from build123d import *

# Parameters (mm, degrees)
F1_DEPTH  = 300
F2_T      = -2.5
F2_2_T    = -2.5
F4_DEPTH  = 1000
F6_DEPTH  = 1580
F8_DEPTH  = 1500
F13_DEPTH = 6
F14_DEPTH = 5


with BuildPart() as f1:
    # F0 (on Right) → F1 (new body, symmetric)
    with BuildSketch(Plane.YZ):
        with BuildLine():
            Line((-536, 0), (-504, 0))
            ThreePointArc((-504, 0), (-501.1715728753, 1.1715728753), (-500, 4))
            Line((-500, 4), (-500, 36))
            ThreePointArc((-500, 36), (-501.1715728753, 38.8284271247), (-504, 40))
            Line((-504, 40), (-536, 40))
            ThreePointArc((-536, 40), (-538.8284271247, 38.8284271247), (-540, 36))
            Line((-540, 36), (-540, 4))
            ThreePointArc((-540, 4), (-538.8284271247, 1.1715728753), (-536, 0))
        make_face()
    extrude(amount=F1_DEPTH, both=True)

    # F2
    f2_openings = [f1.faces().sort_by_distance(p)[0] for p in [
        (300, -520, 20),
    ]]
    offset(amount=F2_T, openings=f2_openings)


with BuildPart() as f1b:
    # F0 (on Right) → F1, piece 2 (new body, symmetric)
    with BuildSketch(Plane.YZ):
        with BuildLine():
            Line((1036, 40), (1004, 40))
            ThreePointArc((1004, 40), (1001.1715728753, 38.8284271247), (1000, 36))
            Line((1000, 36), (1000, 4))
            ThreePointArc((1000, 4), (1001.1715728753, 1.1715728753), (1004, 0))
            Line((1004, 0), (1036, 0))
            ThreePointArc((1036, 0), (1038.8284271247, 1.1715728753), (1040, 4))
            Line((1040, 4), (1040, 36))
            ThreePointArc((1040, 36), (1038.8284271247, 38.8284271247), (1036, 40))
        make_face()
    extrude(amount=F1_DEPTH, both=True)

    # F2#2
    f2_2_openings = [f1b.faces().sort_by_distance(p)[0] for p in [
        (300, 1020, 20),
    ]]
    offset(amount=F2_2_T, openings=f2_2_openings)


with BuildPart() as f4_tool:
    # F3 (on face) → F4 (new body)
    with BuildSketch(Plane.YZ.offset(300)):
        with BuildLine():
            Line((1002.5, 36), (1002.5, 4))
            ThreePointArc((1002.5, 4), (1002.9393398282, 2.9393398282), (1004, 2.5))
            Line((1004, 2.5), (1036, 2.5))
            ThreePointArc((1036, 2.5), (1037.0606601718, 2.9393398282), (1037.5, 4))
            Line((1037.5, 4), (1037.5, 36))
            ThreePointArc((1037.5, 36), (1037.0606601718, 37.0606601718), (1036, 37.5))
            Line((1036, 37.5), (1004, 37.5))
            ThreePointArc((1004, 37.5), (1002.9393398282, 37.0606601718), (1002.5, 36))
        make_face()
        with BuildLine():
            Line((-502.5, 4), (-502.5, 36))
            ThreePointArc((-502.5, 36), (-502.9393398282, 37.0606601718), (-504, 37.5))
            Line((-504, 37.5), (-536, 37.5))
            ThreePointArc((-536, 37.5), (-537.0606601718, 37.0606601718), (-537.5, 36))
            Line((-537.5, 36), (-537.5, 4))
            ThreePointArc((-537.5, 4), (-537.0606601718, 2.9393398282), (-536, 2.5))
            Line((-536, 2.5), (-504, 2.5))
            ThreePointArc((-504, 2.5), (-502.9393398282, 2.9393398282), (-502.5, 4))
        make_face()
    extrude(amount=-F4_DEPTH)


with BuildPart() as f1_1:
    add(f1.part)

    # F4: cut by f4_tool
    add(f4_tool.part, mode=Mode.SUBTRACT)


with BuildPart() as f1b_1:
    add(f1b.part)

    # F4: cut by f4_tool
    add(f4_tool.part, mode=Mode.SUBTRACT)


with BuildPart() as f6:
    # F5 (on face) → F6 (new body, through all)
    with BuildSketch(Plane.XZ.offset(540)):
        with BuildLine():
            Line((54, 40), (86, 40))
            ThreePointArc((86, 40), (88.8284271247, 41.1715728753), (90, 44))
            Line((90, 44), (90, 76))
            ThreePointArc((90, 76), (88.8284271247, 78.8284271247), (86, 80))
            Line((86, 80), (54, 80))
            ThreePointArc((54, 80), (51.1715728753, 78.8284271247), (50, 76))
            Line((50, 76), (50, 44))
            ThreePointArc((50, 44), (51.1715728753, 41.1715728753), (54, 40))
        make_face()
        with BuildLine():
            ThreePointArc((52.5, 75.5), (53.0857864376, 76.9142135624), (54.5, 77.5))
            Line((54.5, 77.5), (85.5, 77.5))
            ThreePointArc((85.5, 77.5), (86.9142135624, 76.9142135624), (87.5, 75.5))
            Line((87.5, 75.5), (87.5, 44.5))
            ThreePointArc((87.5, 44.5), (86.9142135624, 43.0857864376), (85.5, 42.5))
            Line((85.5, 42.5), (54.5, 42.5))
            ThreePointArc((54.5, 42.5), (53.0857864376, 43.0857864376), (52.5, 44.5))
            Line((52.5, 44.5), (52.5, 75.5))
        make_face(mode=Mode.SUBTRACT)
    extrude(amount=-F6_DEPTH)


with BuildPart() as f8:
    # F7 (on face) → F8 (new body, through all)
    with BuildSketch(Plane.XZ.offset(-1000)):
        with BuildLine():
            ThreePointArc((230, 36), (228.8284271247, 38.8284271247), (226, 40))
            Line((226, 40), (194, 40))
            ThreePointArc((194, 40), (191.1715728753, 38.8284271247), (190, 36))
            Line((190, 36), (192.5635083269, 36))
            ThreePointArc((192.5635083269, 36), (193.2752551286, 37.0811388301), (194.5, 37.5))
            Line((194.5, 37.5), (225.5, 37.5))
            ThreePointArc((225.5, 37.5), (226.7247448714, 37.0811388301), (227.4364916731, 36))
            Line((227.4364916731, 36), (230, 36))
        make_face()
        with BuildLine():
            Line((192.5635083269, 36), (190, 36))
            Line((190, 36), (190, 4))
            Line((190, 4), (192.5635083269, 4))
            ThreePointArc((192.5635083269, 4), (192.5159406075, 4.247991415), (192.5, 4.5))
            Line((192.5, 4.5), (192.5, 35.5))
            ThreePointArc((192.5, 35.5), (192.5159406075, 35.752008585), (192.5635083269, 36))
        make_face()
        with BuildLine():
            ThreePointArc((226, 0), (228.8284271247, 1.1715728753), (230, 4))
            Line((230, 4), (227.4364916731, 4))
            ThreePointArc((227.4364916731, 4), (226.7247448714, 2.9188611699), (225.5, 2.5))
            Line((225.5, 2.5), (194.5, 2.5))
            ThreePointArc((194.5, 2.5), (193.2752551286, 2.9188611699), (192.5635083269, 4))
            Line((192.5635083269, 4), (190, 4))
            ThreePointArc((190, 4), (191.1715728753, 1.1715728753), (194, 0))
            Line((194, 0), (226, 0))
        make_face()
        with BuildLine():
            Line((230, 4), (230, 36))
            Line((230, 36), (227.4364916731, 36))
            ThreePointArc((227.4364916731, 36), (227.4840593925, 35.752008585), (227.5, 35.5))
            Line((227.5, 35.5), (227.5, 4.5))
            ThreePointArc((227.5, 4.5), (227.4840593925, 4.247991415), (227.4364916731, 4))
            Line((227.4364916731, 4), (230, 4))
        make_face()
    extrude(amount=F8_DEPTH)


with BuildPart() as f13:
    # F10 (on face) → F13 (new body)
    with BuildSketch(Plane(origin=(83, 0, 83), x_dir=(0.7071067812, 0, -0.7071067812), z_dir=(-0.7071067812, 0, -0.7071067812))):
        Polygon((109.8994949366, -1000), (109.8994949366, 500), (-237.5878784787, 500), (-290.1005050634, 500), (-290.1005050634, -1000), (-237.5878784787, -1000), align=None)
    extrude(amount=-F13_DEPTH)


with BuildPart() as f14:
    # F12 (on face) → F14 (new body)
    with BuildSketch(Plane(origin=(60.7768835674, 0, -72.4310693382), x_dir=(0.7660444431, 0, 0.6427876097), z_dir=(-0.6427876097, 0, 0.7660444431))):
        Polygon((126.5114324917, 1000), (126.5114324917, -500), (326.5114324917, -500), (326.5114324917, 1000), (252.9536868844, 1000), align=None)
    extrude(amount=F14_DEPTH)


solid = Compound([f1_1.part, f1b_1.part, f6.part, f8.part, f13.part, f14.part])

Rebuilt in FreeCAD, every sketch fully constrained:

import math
import FreeCAD as App
import Part
import Sketcher
from FreeCAD import Vector
Q = App.Units.Quantity


def faces_at(feature, points):
    """Names of the faces that lie closest to the given points."""
    faces = feature.Shape.Faces
    near = lambda p: min(range(len(faces)), key=lambda i: faces[i].distToShape(Part.Vertex(*p))[0])
    return sorted({f"Face{near(p) + 1}" for p in points})

doc = App.newDocument("Part")
params = doc.addObject("Spreadsheet::Sheet", "Params")
for row, (alias, value) in enumerate([
    ("sketch1_radius", "4 mm"),
    ("sketch1_width", "32 mm"),
    ("pad1_length", "600 mm"),
    ("thickness_wall", "2.5 mm"),
    ("sketch2_radius", "4 mm"),
    ("sketch2_width", "32 mm"),
    ("pad2_length", "600 mm"),
    ("thickness2_wall", "2.5 mm"),
    ("sketch3_radius", "1.5 mm"),
    ("sketch3_width", "32 mm"),
    ("pad3_length", "1000 mm"),
    ("sketch4_radius", "4 mm"),
    ("sketch4_radius2", "2 mm"),
    ("sketch4_width", "32 mm"),
    ("sketch4_width2", "31 mm"),
    ("pad4_length", "1580 mm"),
    ("sketch5_radius", "4 mm"),
    ("sketch5_radius2", "2 mm"),
    ("sketch5_width", "32 mm"),
    ("sketch5_width2", "31 mm"),
    ("pad5_length", "1500 mm"),
    ("sketch6_width", "400 mm"),
    ("sketch6_height", "1499.999998 mm"),
    ("pad6_length", "6 mm"),
    ("sketch7_width", "200 mm"),
    ("sketch7_height", "1500.000001 mm"),
    ("pad7_length", "5 mm"),
], start=1):
    params.set(f"A{row}", alias)
    params.set(f"B{row}", "=" + value)
    params.setAlias(f"B{row}", alias)

body = doc.addObject("PartDesign::Body", "Body")

# Sketch on YZ plane
sketch1 = body.newObject("Sketcher::SketchObject", "Sketch")
sketch1.AttachmentSupport = (doc.getObject("YZ_Plane"), [""])
sketch1.MapMode = "FlatFace"
sketch1.addGeometry([
    Part.LineSegment(Vector(-536, 0, 0), Vector(-504, 0, 0)),  # 0
    Part.ArcOfCircle(Part.Circle(Vector(-504, 4, 0), Vector(0, 0, 1), 4), math.radians(-90), math.radians(0)),  # 1
    Part.LineSegment(Vector(-500, 4, 0), Vector(-500, 36, 0)),  # 2
    Part.ArcOfCircle(Part.Circle(Vector(-504, 36, 0), Vector(0, 0, 1), 4), math.radians(0), math.radians(90)),  # 3
    Part.LineSegment(Vector(-504, 40, 0), Vector(-536, 40, 0)),  # 4
    Part.ArcOfCircle(Part.Circle(Vector(-536, 36, 0), Vector(0, 0, 1), 4), math.radians(90), math.radians(180)),  # 5
    Part.LineSegment(Vector(-540, 36, 0), Vector(-540, 4, 0)),  # 6
    Part.ArcOfCircle(Part.Circle(Vector(-536, 4, 0), Vector(0, 0, 1), 4), math.radians(180), math.radians(270)),  # 7
], False)
sketch1.addConstraint([
    Sketcher.Constraint("Tangent", 0, 2, 1, 1),
    Sketcher.Constraint("Tangent", 1, 2, 2, 1),
    Sketcher.Constraint("Tangent", 2, 2, 3, 1),
    Sketcher.Constraint("Tangent", 3, 2, 4, 1),
    Sketcher.Constraint("Tangent", 4, 2, 5, 1),
    Sketcher.Constraint("Tangent", 5, 2, 6, 1),
    Sketcher.Constraint("Tangent", 6, 2, 7, 1),
    Sketcher.Constraint("Tangent", 7, 2, 0, 1),
    Sketcher.Constraint("Horizontal", 0),
    Sketcher.Constraint("Vertical", 2),
    Sketcher.Constraint("Horizontal", 4),
    Sketcher.Constraint("Vertical", 6),
    Sketcher.Constraint("Equal", 1, 3),
    Sketcher.Constraint("Equal", 3, 5),
    Sketcher.Constraint("Equal", 5, 7),
    Sketcher.Constraint("PointOnObject", 0, 2, -1),
    Sketcher.Constraint("Equal", 4, 2),
    Sketcher.Constraint("Radius", 1, Q("4 mm")),
    Sketcher.Constraint("DistanceX", 0, 1, 0, 2, Q("32 mm")),
    Sketcher.Constraint("DistanceX", 1, 3, -1, 1, Q("504 mm")),
])
sketch1.setExpression("Constraints[17]", "Params.sketch1_radius")
sketch1.setExpression("Constraints[18]", "Params.sketch1_width")
pad1 = body.newObject("PartDesign::Pad", "Pad")
pad1.Profile = sketch1
pad1.setExpression("Length", "Params.pad1_length")
pad1.Midplane = True
doc.recompute()

thickness = body.newObject("PartDesign::Thickness", "Thickness")
thickness.Base = (pad1, faces_at(pad1, [(300, -520, 20)]))
thickness.setExpression("Value", "Params.thickness_wall")
thickness.Reversed = True
thickness.Join = "Arc"
body2 = doc.addObject("PartDesign::Body", "Body001")

# Sketch on YZ plane
sketch2 = body2.newObject("Sketcher::SketchObject", "Sketch001")
sketch2.AttachmentSupport = (doc.getObject("YZ_Plane001"), [""])
sketch2.MapMode = "FlatFace"
sketch2.addGeometry([
    Part.LineSegment(Vector(1036, 40, 0), Vector(1004, 40, 0)),  # 0
    Part.ArcOfCircle(Part.Circle(Vector(1004, 36, 0), Vector(0, 0, 1), 4), math.radians(90), math.radians(180)),  # 1
    Part.LineSegment(Vector(1000, 36, 0), Vector(1000, 4, 0)),  # 2
    Part.ArcOfCircle(Part.Circle(Vector(1004, 4, 0), Vector(0, 0, 1), 4), math.radians(180), math.radians(270)),  # 3
    Part.LineSegment(Vector(1004, 0, 0), Vector(1036, 0, 0)),  # 4
    Part.ArcOfCircle(Part.Circle(Vector(1036, 4, 0), Vector(0, 0, 1), 4), math.radians(-90), math.radians(0)),  # 5
    Part.LineSegment(Vector(1040, 4, 0), Vector(1040, 36, 0)),  # 6
    Part.ArcOfCircle(Part.Circle(Vector(1036, 36, 0), Vector(0, 0, 1), 4), math.radians(0), math.radians(90)),  # 7
], False)
sketch2.addConstraint([
    Sketcher.Constraint("Tangent", 0, 2, 1, 1),
    Sketcher.Constraint("Tangent", 1, 2, 2, 1),
    Sketcher.Constraint("Tangent", 2, 2, 3, 1),
    Sketcher.Constraint("Tangent", 3, 2, 4, 1),
    Sketcher.Constraint("Tangent", 4, 2, 5, 1),
    Sketcher.Constraint("Tangent", 5, 2, 6, 1),
    Sketcher.Constraint("Tangent", 6, 2, 7, 1),
    Sketcher.Constraint("Tangent", 7, 2, 0, 1),
    Sketcher.Constraint("Horizontal", 0),
    Sketcher.Constraint("Vertical", 2),
    Sketcher.Constraint("Horizontal", 4),
    Sketcher.Constraint("Vertical", 6),
    Sketcher.Constraint("Equal", 1, 3),
    Sketcher.Constraint("Equal", 3, 5),
    Sketcher.Constraint("Equal", 5, 7),
    Sketcher.Constraint("PointOnObject", 3, 2, -1),
    Sketcher.Constraint("Equal", 4, 2),
    Sketcher.Constraint("Radius", 1, Q("4 mm")),
    Sketcher.Constraint("DistanceX", 0, 2, 0, 1, Q("32 mm")),
    Sketcher.Constraint("DistanceX", -1, 1, 1, 3, Q("1004 mm")),
])
sketch2.setExpression("Constraints[17]", "Params.sketch2_radius")
sketch2.setExpression("Constraints[18]", "Params.sketch2_width")
pad2 = body2.newObject("PartDesign::Pad", "Pad001")
pad2.Profile = sketch2
pad2.setExpression("Length", "Params.pad2_length")
pad2.Midplane = True
doc.recompute()

thickness2 = body2.newObject("PartDesign::Thickness", "Thickness001")
thickness2.Base = (pad2, faces_at(pad2, [(300, 1020, 20)]))
thickness2.setExpression("Value", "Params.thickness2_wall")
thickness2.Reversed = True
thickness2.Join = "Arc"
body3 = doc.addObject("PartDesign::Body", "Body002")
body3.AllowCompound = True

# Sketch on YZ plane
sketch3 = body3.newObject("Sketcher::SketchObject", "Sketch002")
sketch3.AttachmentSupport = (doc.getObject("YZ_Plane002"), [""])
sketch3.MapMode = "FlatFace"
sketch3.AttachmentOffset = App.Placement(Vector(0, 0, 300), App.Rotation())
sketch3.addGeometry([
    Part.LineSegment(Vector(1002.5, 36, 0), Vector(1002.5, 4, 0)),  # 0
    Part.ArcOfCircle(Part.Circle(Vector(1004, 4, 0), Vector(0, 0, 1), 1.5), math.radians(180), math.radians(270)),  # 1
    Part.LineSegment(Vector(1004, 2.5, 0), Vector(1036, 2.5, 0)),  # 2
    Part.ArcOfCircle(Part.Circle(Vector(1036, 4, 0), Vector(0, 0, 1), 1.5), math.radians(-90), math.radians(0)),  # 3
    Part.LineSegment(Vector(1037.5, 4, 0), Vector(1037.5, 36, 0)),  # 4
    Part.ArcOfCircle(Part.Circle(Vector(1036, 36, 0), Vector(0, 0, 1), 1.5), math.radians(0), math.radians(90)),  # 5
    Part.LineSegment(Vector(1036, 37.5, 0), Vector(1004, 37.5, 0)),  # 6
    Part.ArcOfCircle(Part.Circle(Vector(1004, 36, 0), Vector(0, 0, 1), 1.5), math.radians(90), math.radians(180)),  # 7
    Part.LineSegment(Vector(-502.5, 4, 0), Vector(-502.5, 36, 0)),  # 8
    Part.ArcOfCircle(Part.Circle(Vector(-504, 36, 0), Vector(0, 0, 1), 1.5), math.radians(0), math.radians(90)),  # 9
    Part.LineSegment(Vector(-504, 37.5, 0), Vector(-536, 37.5, 0)),  # 10
    Part.ArcOfCircle(Part.Circle(Vector(-536, 36, 0), Vector(0, 0, 1), 1.5), math.radians(90), math.radians(180)),  # 11
    Part.LineSegment(Vector(-537.5, 36, 0), Vector(-537.5, 4, 0)),  # 12
    Part.ArcOfCircle(Part.Circle(Vector(-536, 4, 0), Vector(0, 0, 1), 1.5), math.radians(180), math.radians(270)),  # 13
    Part.LineSegment(Vector(-536, 2.5, 0), Vector(-504, 2.5, 0)),  # 14
    Part.ArcOfCircle(Part.Circle(Vector(-504, 4, 0), Vector(0, 0, 1), 1.5), math.radians(-90), math.radians(0)),  # 15
], False)
sketch3.addConstraint([
    Sketcher.Constraint("Tangent", 0, 2, 1, 1),
    Sketcher.Constraint("Tangent", 1, 2, 2, 1),
    Sketcher.Constraint("Tangent", 2, 2, 3, 1),
    Sketcher.Constraint("Tangent", 3, 2, 4, 1),
    Sketcher.Constraint("Tangent", 4, 2, 5, 1),
    Sketcher.Constraint("Tangent", 5, 2, 6, 1),
    Sketcher.Constraint("Tangent", 6, 2, 7, 1),
    Sketcher.Constraint("Tangent", 7, 2, 0, 1),
    Sketcher.Constraint("Tangent", 8, 2, 9, 1),
    Sketcher.Constraint("Tangent", 9, 2, 10, 1),
    Sketcher.Constraint("Tangent", 10, 2, 11, 1),
    Sketcher.Constraint("Tangent", 11, 2, 12, 1),
    Sketcher.Constraint("Tangent", 12, 2, 13, 1),
    Sketcher.Constraint("Tangent", 13, 2, 14, 1),
    Sketcher.Constraint("Tangent", 14, 2, 15, 1),
    Sketcher.Constraint("Tangent", 15, 2, 8, 1),
    Sketcher.Constraint("Vertical", 0),
    Sketcher.Constraint("Horizontal", 2),
    Sketcher.Constraint("Vertical", 4),
    Sketcher.Constraint("Horizontal", 6),
    Sketcher.Constraint("Vertical", 8),
    Sketcher.Constraint("Horizontal", 10),
    Sketcher.Constraint("Vertical", 12),
    Sketcher.Constraint("Horizontal", 14),
    Sketcher.Constraint("Equal", 1, 3),
    Sketcher.Constraint("Equal", 3, 5),
    Sketcher.Constraint("Equal", 5, 7),
    Sketcher.Constraint("Equal", 7, 9),
    Sketcher.Constraint("Equal", 9, 11),
    Sketcher.Constraint("Equal", 11, 13),
    Sketcher.Constraint("Equal", 13, 15),
    Sketcher.Constraint("Horizontal", 7, 3, 9, 3),
    Sketcher.Constraint("Horizontal", 3, 3, 13, 3),
    Sketcher.Constraint("Equal", 6, 10),
    Sketcher.Constraint("Equal", 14, 0),
    Sketcher.Constraint("Radius", 1, Q("1.5 mm")),
    Sketcher.Constraint("DistanceX", 2, 1, 2, 2, Q("32 mm")),
    Sketcher.Constraint("DistanceX", -1, 1, 1, 3, Q("1004 mm")),
    Sketcher.Constraint("DistanceY", -1, 1, 1, 3, Q("4 mm")),
    Sketcher.Constraint("DistanceX", 9, 3, -1, 1, Q("504 mm")),
])
sketch3.setExpression("Constraints[35]", "Params.sketch3_radius")
sketch3.setExpression("Constraints[36]", "Params.sketch3_width")
pad3 = body3.newObject("PartDesign::Pad", "Pad002")
pad3.Profile = sketch3
pad3.setExpression("Length", "Params.pad3_length")
pad3.Reversed = True
doc.recompute()

body4 = doc.addObject("PartDesign::Body", "Body003")
body4.BaseFeature = body3
boolean = body.newObject("PartDesign::Boolean", "Boolean")
boolean.Type = "Cut"
boolean.addObjects([body4])
doc.recompute()

boolean2 = body2.newObject("PartDesign::Boolean", "Boolean001")
boolean2.Type = "Cut"
boolean2.addObjects([body3])
body5 = doc.addObject("PartDesign::Body", "Body004")

# Sketch on XZ plane
sketch4 = body5.newObject("Sketcher::SketchObject", "Sketch003")
sketch4.AttachmentSupport = (doc.getObject("XZ_Plane004"), [""])
sketch4.MapMode = "FlatFace"
sketch4.AttachmentOffset = App.Placement(Vector(0, 0, 540), App.Rotation())
sketch4.addGeometry([
    Part.LineSegment(Vector(54, 40, 0), Vector(86, 40, 0)),  # 0
    Part.ArcOfCircle(Part.Circle(Vector(86, 44, 0), Vector(0, 0, 1), 4), math.radians(-90), math.radians(0)),  # 1
    Part.LineSegment(Vector(90, 44, 0), Vector(90, 76, 0)),  # 2
    Part.ArcOfCircle(Part.Circle(Vector(86, 76, 0), Vector(0, 0, 1), 4), math.radians(0), math.radians(90)),  # 3
    Part.LineSegment(Vector(86, 80, 0), Vector(54, 80, 0)),  # 4
    Part.ArcOfCircle(Part.Circle(Vector(54, 76, 0), Vector(0, 0, 1), 4), math.radians(90), math.radians(180)),  # 5
    Part.LineSegment(Vector(50, 76, 0), Vector(50, 44, 0)),  # 6
    Part.ArcOfCircle(Part.Circle(Vector(54, 44, 0), Vector(0, 0, 1), 4), math.radians(180), math.radians(270)),  # 7
    Part.LineSegment(Vector(52.5, 44.5, 0), Vector(52.5, 75.5, 0)),  # 8
    Part.ArcOfCircle(Part.Circle(Vector(54.5, 75.5, 0), Vector(0, 0, 1), 2), math.radians(90), math.radians(180)),  # 9
    Part.LineSegment(Vector(54.5, 77.5, 0), Vector(85.5, 77.5, 0)),  # 10
    Part.ArcOfCircle(Part.Circle(Vector(85.5, 75.5, 0), Vector(0, 0, 1), 2), math.radians(0), math.radians(90)),  # 11
    Part.LineSegment(Vector(87.5, 75.5, 0), Vector(87.5, 44.5, 0)),  # 12
    Part.ArcOfCircle(Part.Circle(Vector(85.5, 44.5, 0), Vector(0, 0, 1), 2), math.radians(-90), math.radians(0)),  # 13
    Part.LineSegment(Vector(85.5, 42.5, 0), Vector(54.5, 42.5, 0)),  # 14
    Part.ArcOfCircle(Part.Circle(Vector(54.5, 44.5, 0), Vector(0, 0, 1), 2), math.radians(180), math.radians(270)),  # 15
], False)
sketch4.addConstraint([
    Sketcher.Constraint("Tangent", 0, 2, 1, 1),
    Sketcher.Constraint("Tangent", 1, 2, 2, 1),
    Sketcher.Constraint("Tangent", 2, 2, 3, 1),
    Sketcher.Constraint("Tangent", 3, 2, 4, 1),
    Sketcher.Constraint("Tangent", 4, 2, 5, 1),
    Sketcher.Constraint("Tangent", 5, 2, 6, 1),
    Sketcher.Constraint("Tangent", 6, 2, 7, 1),
    Sketcher.Constraint("Tangent", 7, 2, 0, 1),
    Sketcher.Constraint("Tangent", 8, 2, 9, 2),
    Sketcher.Constraint("Tangent", 9, 1, 10, 1),
    Sketcher.Constraint("Tangent", 10, 2, 11, 2),
    Sketcher.Constraint("Tangent", 11, 1, 12, 1),
    Sketcher.Constraint("Tangent", 12, 2, 13, 2),
    Sketcher.Constraint("Tangent", 13, 1, 14, 1),
    Sketcher.Constraint("Tangent", 14, 2, 15, 2),
    Sketcher.Constraint("Tangent", 15, 1, 8, 1),
    Sketcher.Constraint("Horizontal", 0),
    Sketcher.Constraint("Vertical", 2),
    Sketcher.Constraint("Horizontal", 4),
    Sketcher.Constraint("Vertical", 6),
    Sketcher.Constraint("Vertical", 8),
    Sketcher.Constraint("Horizontal", 10),
    Sketcher.Constraint("Vertical", 12),
    Sketcher.Constraint("Horizontal", 14),
    Sketcher.Constraint("Equal", 1, 3),
    Sketcher.Constraint("Equal", 3, 5),
    Sketcher.Constraint("Equal", 5, 7),
    Sketcher.Constraint("Equal", 9, 11),
    Sketcher.Constraint("Equal", 11, 13),
    Sketcher.Constraint("Equal", 13, 15),
    Sketcher.Constraint("Equal", 4, 2),
    Sketcher.Constraint("Equal", 14, 8),
    Sketcher.Constraint("Radius", 1, Q("4 mm")),
    Sketcher.Constraint("Radius", 9, Q("2 mm")),
    Sketcher.Constraint("DistanceX", 0, 1, 0, 2, Q("32 mm")),
    Sketcher.Constraint("DistanceX", 10, 1, 10, 2, Q("31 mm")),
    Sketcher.Constraint("DistanceX", -1, 1, 1, 3, Q("86 mm")),
    Sketcher.Constraint("DistanceY", -1, 1, 1, 3, Q("44 mm")),
    Sketcher.Constraint("DistanceX", -1, 1, 9, 3, Q("54.5 mm")),
    Sketcher.Constraint("DistanceY", -1, 1, 9, 3, Q("75.5 mm")),
])
sketch4.setExpression("Constraints[32]", "Params.sketch4_radius")
sketch4.setExpression("Constraints[33]", "Params.sketch4_radius2")
sketch4.setExpression("Constraints[34]", "Params.sketch4_width")
sketch4.setExpression("Constraints[35]", "Params.sketch4_width2")
pad4 = body5.newObject("PartDesign::Pad", "Pad003")
pad4.Profile = sketch4
pad4.setExpression("Length", "Params.pad4_length")
pad4.Reversed = True
body6 = doc.addObject("PartDesign::Body", "Body005")

# Sketch on XZ plane
sketch5 = body6.newObject("Sketcher::SketchObject", "Sketch004")
sketch5.AttachmentSupport = (doc.getObject("XZ_Plane005"), [""])
sketch5.MapMode = "FlatFace"
sketch5.AttachmentOffset = App.Placement(Vector(0, 0, -1000), App.Rotation())
sketch5.addGeometry([
    Part.ArcOfCircle(Part.Circle(Vector(226, 36, 0), Vector(0, 0, 1), 4), math.radians(0), math.radians(90)),  # 0
    Part.LineSegment(Vector(226, 40, 0), Vector(194, 40, 0)),  # 1
    Part.ArcOfCircle(Part.Circle(Vector(194, 36, 0), Vector(0, 0, 1), 4), math.radians(90), math.radians(180)),  # 2
    Part.LineSegment(Vector(190, 36, 0), Vector(190, 4, 0)),  # 3
    Part.ArcOfCircle(Part.Circle(Vector(194, 4, 0), Vector(0, 0, 1), 4), math.radians(180), math.radians(270)),  # 4
    Part.LineSegment(Vector(194, 0, 0), Vector(226, 0, 0)),  # 5
    Part.ArcOfCircle(Part.Circle(Vector(226, 4, 0), Vector(0, 0, 1), 4), math.radians(-90), math.radians(0)),  # 6
    Part.LineSegment(Vector(230, 4, 0), Vector(230, 36, 0)),  # 7
    Part.ArcOfCircle(Part.Circle(Vector(225.5, 4.5, 0), Vector(0, 0, 1), 2), math.radians(-90), math.radians(-14)),  # 8
    Part.LineSegment(Vector(225.5, 2.5, 0), Vector(194.5, 2.5, 0)),  # 9
    Part.ArcOfCircle(Part.Circle(Vector(194.5, 4.5, 0), Vector(0, 0, 1), 2), math.radians(-166), math.radians(-90)),  # 10
    Part.ArcOfCircle(Part.Circle(Vector(194.5, 4.5, 0), Vector(0, 0, 1), 2), math.radians(180), math.radians(194.48)),  # 11
    Part.LineSegment(Vector(192.5, 4.5, 0), Vector(192.5, 35.5, 0)),  # 12
    Part.ArcOfCircle(Part.Circle(Vector(194.5, 35.5, 0), Vector(0, 0, 1), 2), math.radians(165.52), math.radians(180)),  # 13
    Part.ArcOfCircle(Part.Circle(Vector(194.5, 35.5, 0), Vector(0, 0, 1), 2), math.radians(90), math.radians(166)),  # 14
    Part.LineSegment(Vector(194.5, 37.5, 0), Vector(225.5, 37.5, 0)),  # 15
    Part.ArcOfCircle(Part.Circle(Vector(225.5, 35.5, 0), Vector(0, 0, 1), 2), math.radians(14), math.radians(90)),  # 16
    Part.ArcOfCircle(Part.Circle(Vector(225.5, 35.5, 0), Vector(0, 0, 1), 2), math.radians(0), math.radians(14.48)),  # 17
    Part.LineSegment(Vector(227.5, 35.5, 0), Vector(227.5, 4.5, 0)),  # 18
    Part.ArcOfCircle(Part.Circle(Vector(225.5, 4.5, 0), Vector(0, 0, 1), 2), math.radians(-14.48), math.radians(0)),  # 19
], False)
sketch5.addConstraint([
    Sketcher.Constraint("Tangent", 0, 2, 1, 1),
    Sketcher.Constraint("Tangent", 1, 2, 2, 1),
    Sketcher.Constraint("Tangent", 2, 2, 3, 1),
    Sketcher.Constraint("Tangent", 3, 2, 4, 1),
    Sketcher.Constraint("Tangent", 4, 2, 5, 1),
    Sketcher.Constraint("Tangent", 5, 2, 6, 1),
    Sketcher.Constraint("Tangent", 6, 2, 7, 1),
    Sketcher.Constraint("Tangent", 7, 2, 0, 1),
    Sketcher.Constraint("Tangent", 8, 1, 9, 1),
    Sketcher.Constraint("Tangent", 9, 2, 10, 2),
    Sketcher.Constraint("Tangent", 10, 1, 11, 2),
    Sketcher.Constraint("Tangent", 11, 1, 12, 1),
    Sketcher.Constraint("Tangent", 12, 2, 13, 2),
    Sketcher.Constraint("Tangent", 13, 1, 14, 2),
    Sketcher.Constraint("Tangent", 14, 1, 15, 1),
    Sketcher.Constraint("Tangent", 15, 2, 16, 2),
    Sketcher.Constraint("Tangent", 16, 1, 17, 2),
    Sketcher.Constraint("Tangent", 17, 1, 18, 1),
    Sketcher.Constraint("Tangent", 18, 2, 19, 2),
    Sketcher.Constraint("Tangent", 19, 1, 8, 2),
    Sketcher.Constraint("Horizontal", 1),
    Sketcher.Constraint("Vertical", 3),
    Sketcher.Constraint("Horizontal", 5),
    Sketcher.Constraint("Vertical", 7),
    Sketcher.Constraint("Horizontal", 9),
    Sketcher.Constraint("Vertical", 12),
    Sketcher.Constraint("Horizontal", 15),
    Sketcher.Constraint("Vertical", 18),
    Sketcher.Constraint("Equal", 0, 2),
    Sketcher.Constraint("Equal", 2, 4),
    Sketcher.Constraint("Equal", 4, 6),
    Sketcher.Constraint("Equal", 8, 10),
    Sketcher.Constraint("Equal", 10, 11),
    Sketcher.Constraint("Equal", 11, 13),
    Sketcher.Constraint("Equal", 13, 14),
    Sketcher.Constraint("Equal", 14, 16),
    Sketcher.Constraint("Equal", 16, 17),
    Sketcher.Constraint("Equal", 17, 19),
    Sketcher.Constraint("PointOnObject", 4, 2, -1),
    Sketcher.Constraint("Horizontal", 6, 2, 10, 1),
    Sketcher.Constraint("Horizontal", 7, 2, 13, 1),
    Sketcher.Constraint("Horizontal", 13, 1, 16, 1),
    Sketcher.Constraint("Horizontal", 10, 1, 19, 1),
    Sketcher.Constraint("Vertical", 10, 1, 13, 1),
    Sketcher.Constraint("Equal", 5, 3),
    Sketcher.Constraint("Equal", 15, 12),
    Sketcher.Constraint("Radius", 0, Q("4 mm")),
    Sketcher.Constraint("Radius", 8, Q("2 mm")),
    Sketcher.Constraint("DistanceX", 1, 2, 1, 1, Q("32 mm")),
    Sketcher.Constraint("DistanceX", 9, 2, 9, 1, Q("31 mm")),
    Sketcher.Constraint("DistanceX", -1, 1, 0, 3, Q("226 mm")),
    Sketcher.Constraint("DistanceX", -1, 1, 8, 3, Q("225.5 mm")),
])
sketch5.setExpression("Constraints[46]", "Params.sketch5_radius")
sketch5.setExpression("Constraints[47]", "Params.sketch5_radius2")
sketch5.setExpression("Constraints[48]", "Params.sketch5_width")
sketch5.setExpression("Constraints[49]", "Params.sketch5_width2")
pad5 = body6.newObject("PartDesign::Pad", "Pad004")
pad5.Profile = sketch5
pad5.setExpression("Length", "Params.pad5_length")
body7 = doc.addObject("PartDesign::Body", "Body006")

# Sketch on an angled plane
sketch6 = body7.newObject("Sketcher::SketchObject", "Sketch005")
sketch6.Placement = App.Placement(Vector(83, 0, 83), App.Rotation(Vector(0.707106781, 0, -0.707106781), Vector(0, -0.999999999, 0), Vector(-0.707106781, 0, -0.707106781), "ZXY"))
sketch6.addGeometry([
    Part.LineSegment(Vector(110, -1000, 0), Vector(110, 500, 0)),
    Part.LineSegment(Vector(110, 500, 0), Vector(-290, 500, 0)),
    Part.LineSegment(Vector(-290, 500, 0), Vector(-290, -1000, 0)),
    Part.LineSegment(Vector(-290, -1000, 0), Vector(110, -1000, 0)),
], False)
sketch6.addConstraint([
    Sketcher.Constraint("Coincident", 0, 2, 1, 1),
    Sketcher.Constraint("Coincident", 1, 2, 2, 1),
    Sketcher.Constraint("Coincident", 2, 2, 3, 1),
    Sketcher.Constraint("Coincident", 3, 2, 0, 1),
    Sketcher.Constraint("Vertical", 0),
    Sketcher.Constraint("Horizontal", 1),
    Sketcher.Constraint("Vertical", 2),
    Sketcher.Constraint("Horizontal", 3),
    Sketcher.Constraint("DistanceX", 1, 2, 1, 1, Q("400 mm")),
    Sketcher.Constraint("DistanceY", 0, 1, 0, 2, Q("1499.999998 mm")),
    Sketcher.Constraint("DistanceY", -1, 1, 0, 2, Q("499.999999 mm")),
    Sketcher.Constraint("DistanceX", -1, 1, 0, 2, Q("109.899495 mm")),
])
sketch6.setExpression("Constraints[8]", "Params.sketch6_width")
sketch6.setExpression("Constraints[9]", "Params.sketch6_height")
pad6 = body7.newObject("PartDesign::Pad", "Pad005")
pad6.Profile = sketch6
pad6.setExpression("Length", "Params.pad6_length")
pad6.Reversed = True
body8 = doc.addObject("PartDesign::Body", "Body007")

# Sketch on an angled plane
sketch7 = body8.newObject("Sketcher::SketchObject", "Sketch006")
sketch7.Placement = App.Placement(Vector(60.776884, 0, -72.431069), App.Rotation(Vector(0.766044443, 0, 0.64278761), Vector(0, 1, 0), Vector(-0.64278761, 0, 0.766044443), "ZXY"))
sketch7.addGeometry([
    Part.LineSegment(Vector(127, 1000, 0), Vector(127, -500, 0)),
    Part.LineSegment(Vector(127, -500, 0), Vector(327, -500, 0)),
    Part.LineSegment(Vector(327, -500, 0), Vector(327, 1000, 0)),
    Part.LineSegment(Vector(327, 1000, 0), Vector(127, 1000, 0)),
], False)
sketch7.addConstraint([
    Sketcher.Constraint("Coincident", 0, 2, 1, 1),
    Sketcher.Constraint("Coincident", 1, 2, 2, 1),
    Sketcher.Constraint("Coincident", 2, 2, 3, 1),
    Sketcher.Constraint("Coincident", 3, 2, 0, 1),
    Sketcher.Constraint("Vertical", 0),
    Sketcher.Constraint("Horizontal", 1),
    Sketcher.Constraint("Vertical", 2),
    Sketcher.Constraint("Horizontal", 3),
    Sketcher.Constraint("DistanceX", 1, 1, 1, 2, Q("200 mm")),
    Sketcher.Constraint("DistanceY", 0, 2, 0, 1, Q("1500.000001 mm")),
    Sketcher.Constraint("DistanceY", 0, 2, -1, 1, Q("500 mm")),
    Sketcher.Constraint("DistanceX", -1, 1, 0, 2, Q("126.511433 mm")),
])
sketch7.setExpression("Constraints[8]", "Params.sketch7_width")
sketch7.setExpression("Constraints[9]", "Params.sketch7_height")
pad7 = body8.newObject("PartDesign::Pad", "Pad006")
pad7.Profile = sketch7
pad7.setExpression("Length", "Params.pad7_length")

doc.recompute()
